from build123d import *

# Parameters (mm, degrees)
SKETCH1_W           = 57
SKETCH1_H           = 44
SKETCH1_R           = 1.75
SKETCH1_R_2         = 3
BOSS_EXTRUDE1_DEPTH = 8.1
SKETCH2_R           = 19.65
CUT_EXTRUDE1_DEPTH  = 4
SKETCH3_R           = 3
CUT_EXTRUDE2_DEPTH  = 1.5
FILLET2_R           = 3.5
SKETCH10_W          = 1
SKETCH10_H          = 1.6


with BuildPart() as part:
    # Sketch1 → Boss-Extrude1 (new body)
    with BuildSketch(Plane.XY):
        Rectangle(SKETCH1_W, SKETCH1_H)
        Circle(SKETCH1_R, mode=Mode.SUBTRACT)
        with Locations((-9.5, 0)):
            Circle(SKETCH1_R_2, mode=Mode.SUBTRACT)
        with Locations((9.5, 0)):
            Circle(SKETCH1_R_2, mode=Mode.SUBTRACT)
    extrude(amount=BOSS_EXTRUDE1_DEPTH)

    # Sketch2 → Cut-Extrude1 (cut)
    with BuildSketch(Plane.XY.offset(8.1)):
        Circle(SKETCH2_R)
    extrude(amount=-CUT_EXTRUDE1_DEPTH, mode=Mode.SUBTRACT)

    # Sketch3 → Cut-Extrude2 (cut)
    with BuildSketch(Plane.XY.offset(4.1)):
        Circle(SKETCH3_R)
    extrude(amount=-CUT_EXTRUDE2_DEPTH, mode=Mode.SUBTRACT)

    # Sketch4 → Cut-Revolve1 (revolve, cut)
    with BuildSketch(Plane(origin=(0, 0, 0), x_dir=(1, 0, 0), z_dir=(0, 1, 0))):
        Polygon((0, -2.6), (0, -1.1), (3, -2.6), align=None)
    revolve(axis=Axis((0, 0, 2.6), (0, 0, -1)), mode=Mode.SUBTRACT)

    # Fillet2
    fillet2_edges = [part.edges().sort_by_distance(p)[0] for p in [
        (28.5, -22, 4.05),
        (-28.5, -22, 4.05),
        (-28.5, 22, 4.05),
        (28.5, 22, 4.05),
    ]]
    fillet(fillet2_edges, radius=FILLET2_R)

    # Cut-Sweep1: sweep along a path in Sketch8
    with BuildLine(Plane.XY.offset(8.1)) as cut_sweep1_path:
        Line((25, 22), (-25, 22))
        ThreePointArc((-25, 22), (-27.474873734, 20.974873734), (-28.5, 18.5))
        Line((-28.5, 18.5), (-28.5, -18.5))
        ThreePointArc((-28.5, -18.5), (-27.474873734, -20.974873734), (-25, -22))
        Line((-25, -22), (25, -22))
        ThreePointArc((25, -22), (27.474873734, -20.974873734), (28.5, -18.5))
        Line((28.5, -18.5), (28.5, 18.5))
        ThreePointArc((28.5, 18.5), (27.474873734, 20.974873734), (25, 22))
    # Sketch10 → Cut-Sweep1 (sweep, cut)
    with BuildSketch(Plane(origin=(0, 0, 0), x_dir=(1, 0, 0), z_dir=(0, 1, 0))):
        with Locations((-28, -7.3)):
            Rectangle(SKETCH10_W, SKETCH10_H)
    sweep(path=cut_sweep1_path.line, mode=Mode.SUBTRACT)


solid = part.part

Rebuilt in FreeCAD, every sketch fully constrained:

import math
import FreeCAD as App
import Part
import Sketcher


def edges_at(feature, points):
    """Names of the edges that pass closest to the given points."""
    edges = feature.Shape.Edges
    near = lambda p: min(range(len(edges)), key=lambda i: edges[i].distToShape(Part.Vertex(*p))[0])
    return sorted({f"Edge{near(p) + 1}" for p in points})


def add_polygon(sketch, points):
    """Adds a closed chain of lines whose ends are joined by coincident constraints."""
    first, n = sketch.GeometryCount, len(points)
    for a, b in zip(points, points[1:] + points[:1]):
        sketch.addGeometry(Part.LineSegment(App.Vector(*a, 0), App.Vector(*b, 0)), False)
    for i in range(n):
        sketch.addConstraint(Sketcher.Constraint("Coincident", first + i, 2, first + (i + 1) % n, 1))

doc = App.newDocument("Part")
params = doc.addObject("Spreadsheet::Sheet", "Params")
for row, (alias, value) in enumerate([
    ("sketch1_diameter", "6 mm"),
    ("sketch1_diameter2", "3.5 mm"),
    ("sketch1_width", "57 mm"),
    ("sketch1_height", "44 mm"),
    ("pad1_length", "8.1 mm"),
    ("sketch2_diameter", "39.3 mm"),
    ("pocket1_length", "4 mm"),
    ("sketch3_diameter", "6 mm"),
    ("pocket2_length", "1.5 mm"),
    ("sketch4_width", "3 mm"),
    ("sketch4_height", "1.5 mm"),
    ("groove_angle", "360 deg"),
    ("fillet_radius", "3.5 mm"),
    ("sketch5_width", "1 mm"),
    ("sketch5_height", "1.6 mm"),
    ("sketch6_radius", "3.5 mm"),
    ("sketch6_width", "50 mm"),
    ("sketch6_height", "37 mm"),
], start=1):
    params.set(f"A{row}", alias)
    params.set(f"B{row}", "=" + value)
    params.setAlias(f"B{row}", alias)

body = doc.addObject("PartDesign::Body", "Body")

# Sketch on XY plane
sketch1 = body.newObject("Sketcher::SketchObject", "Sketch")
sketch1.AttachmentSupport = (doc.getObject("XY_Plane"), [""])
sketch1.MapMode = "FlatFace"
add_polygon(sketch1, [(-28.5, 22), (-28.5, -22), (28.5, -22), (28.5, 22)])  # lines 0-3
sketch1.addGeometry(Part.Circle(App.Vector(-9.5, 0, 0), App.Vector(0, 0, 1), 3), False)  # 4
sketch1.addGeometry(Part.Circle(App.Vector(0, 0, 0), App.Vector(0, 0, 1), 1.75), False)  # 5
sketch1.addGeometry(Part.Circle(App.Vector(9.5, 0, 0), App.Vector(0, 0, 1), 3), False)  # 6
sketch1.addConstraint([
    Sketcher.Constraint("Vertical", 0),
    Sketcher.Constraint("Horizontal", 1),
    Sketcher.Constraint("Vertical", 2),
    Sketcher.Constraint("Horizontal", 3),
    Sketcher.Constraint("Coincident", 5, 3, -1, 1),
    Sketcher.Constraint("Equal", 4, 6),
    Sketcher.Constraint("Symmetric", 4, 3, 6, 3, -1, 1),
    Sketcher.Constraint("Symmetric", 0, 2, 2, 2, -1, 1),
    Sketcher.Constraint("PointOnObject", 4, 3, -1),
    Sketcher.Constraint("Diameter", 4, 6.0),
    Sketcher.Constraint("Diameter", 5, 3.5),
    Sketcher.Constraint("DistanceX", 1, 1, 1, 2, 57.0),
    Sketcher.Constraint("DistanceY", 0, 2, 0, 1, 44.0),
    Sketcher.Constraint("DistanceX", 4, 3, 6, 3, 19.0),
])
sketch1.setExpression("Constraints[13]", "Params.sketch1_diameter")
sketch1.setExpression("Constraints[14]", "Params.sketch1_diameter2")
sketch1.setExpression("Constraints[15]", "Params.sketch1_width")
sketch1.setExpression("Constraints[16]", "Params.sketch1_height")
pad1 = body.newObject("PartDesign::Pad", "Pad")
pad1.Profile = sketch1
pad1.setExpression("Length", "Params.pad1_length")

# Sketch on XY plane
sketch2 = body.newObject("Sketcher::SketchObject", "Sketch001")
sketch2.AttachmentSupport = (doc.getObject("XY_Plane"), [""])
sketch2.MapMode = "FlatFace"
sketch2.AttachmentOffset = App.Placement(App.Vector(0, 0, 8.1), App.Rotation())
sketch2.addGeometry(Part.Circle(App.Vector(0, 0, 0), App.Vector(0, 0, 1), 19.65), False)
sketch2.addConstraint([
    Sketcher.Constraint("Coincident", 0, 3, -1, 1),
    Sketcher.Constraint("Diameter", 0, 39.3),
])
sketch2.setExpression("Constraints[1]", "Params.sketch2_diameter")
pocket1 = body.newObject("PartDesign::Pocket", "Pocket")
pocket1.Profile = sketch2
pocket1.setExpression("Length", "Params.pocket1_length")

# Sketch on XY plane
sketch3 = body.newObject("Sketcher::SketchObject", "Sketch002")
sketch3.AttachmentSupport = (doc.getObject("XY_Plane"), [""])
sketch3.MapMode = "FlatFace"
sketch3.AttachmentOffset = App.Placement(App.Vector(0, 0, 4.1), App.Rotation())
sketch3.addGeometry(Part.Circle(App.Vector(0, 0, 0), App.Vector(0, 0, 1), 3), False)
sketch3.addConstraint([
    Sketcher.Constraint("Coincident", 0, 3, -1, 1),
    Sketcher.Constraint("Diameter", 0, 6.0),
])
sketch3.setExpression("Constraints[1]", "Params.sketch3_diameter")
pocket2 = body.newObject("PartDesign::Pocket", "Pocket001")
pocket2.Profile = sketch3
pocket2.setExpression("Length", "Params.pocket2_length")

# Sketch on XZ plane
sketch4 = body.newObject("Sketcher::SketchObject", "Sketch003")
sketch4.AttachmentSupport = (doc.getObject("XZ_Plane"), [""])
sketch4.MapMode = "FlatFace"
add_polygon(sketch4, [(0, 1.1), (0, 2.6), (3, 2.6)])  # lines 0-2
sketch4.addConstraint([
    Sketcher.Constraint("Vertical", 0),
    Sketcher.Constraint("Horizontal", 1),
    Sketcher.Constraint("PointOnObject", 0, 2, -2),
    Sketcher.Constraint("DistanceX", 1, 1, 1, 2, 3.0),
    Sketcher.Constraint("DistanceY", 0, 1, 0, 2, 1.5),
    Sketcher.Constraint("DistanceY", -1, 1, 0, 2, 2.6),
])
sketch4.setExpression("Constraints[6]", "Params.sketch4_width")
sketch4.setExpression("Constraints[7]", "Params.sketch4_height")
groove = body.newObject("PartDesign::Groove", "Groove")
groove.Profile = sketch4
groove.ReferenceAxis = (sketch4, ["V_Axis"])
groove.setExpression("Angle", "Params.groove_angle")
doc.recompute()

fillet = body.newObject("PartDesign::Fillet", "Fillet")
fillet.Base = (groove, edges_at(groove, [
    (28.5, -22, 4.05),
    (-28.5, -22, 4.05),
    (-28.5, 22, 4.05),
    (28.5, 22, 4.05),
]))
fillet.setExpression("Radius", "Params.fillet_radius")

# Sketch on XZ plane
sketch5 = body.newObject("Sketcher::SketchObject", "Sketch004")
sketch5.AttachmentSupport = (doc.getObject("XZ_Plane"), [""])
sketch5.MapMode = "FlatFace"
add_polygon(sketch5, [(-28.5, 6.5), (-28.5, 8.1), (-27.5, 8.1), (-27.5, 6.5)])  # lines 0-3
sketch5.addConstraint([
    Sketcher.Constraint("Vertical", 0),
    Sketcher.Constraint("Horizontal", 1),
    Sketcher.Constraint("Vertical", 2),
    Sketcher.Constraint("Horizontal", 3),
    Sketcher.Constraint("DistanceX", 1, 1, 1, 2, 1.0),
    Sketcher.Constraint("DistanceY", 0, 1, 0, 2, 1.6),
    Sketcher.Constraint("DistanceX", 0, 2, -1, 1, 28.5),
    Sketcher.Constraint("DistanceY", -1, 1, 0, 2, 8.1),
])
sketch5.setExpression("Constraints[8]", "Params.sketch5_width")
sketch5.setExpression("Constraints[9]", "Params.sketch5_height")

# Sketch on XY plane
sketch6 = body.newObject("Sketcher::SketchObject", "Sketch005")
sketch6.AttachmentSupport = (doc.getObject("XY_Plane"), [""])
sketch6.MapMode = "FlatFace"
sketch6.AttachmentOffset = App.Placement(App.Vector(0, 0, 8.1), App.Rotation())
sketch6.addGeometry([
    Part.LineSegment(App.Vector(25, 22, 0), App.Vector(-25, 22, 0)),  # 0
    Part.ArcOfCircle(Part.Circle(App.Vector(-25, 18.5, 0), App.Vector(0, 0, 1), 3.5), math.radians(90), math.radians(180)),  # 1
    Part.LineSegment(App.Vector(-28.5, 18.5, 0), App.Vector(-28.5, -18.5, 0)),  # 2
    Part.ArcOfCircle(Part.Circle(App.Vector(-25, -18.5, 0), App.Vector(0, 0, 1), 3.5), math.radians(-180), math.radians(-90)),  # 3
    Part.LineSegment(App.Vector(-25, -22, 0), App.Vector(25, -22, 0)),  # 4
    Part.ArcOfCircle(Part.Circle(App.Vector(25, -18.5, 0), App.Vector(0, 0, 1), 3.5), math.radians(-90), math.radians(0)),  # 5
    Part.LineSegment(App.Vector(28.5, -18.5, 0), App.Vector(28.5, 18.5, 0)),  # 6
    Part.ArcOfCircle(Part.Circle(App.Vector(25, 18.5, 0), App.Vector(0, 0, 1), 3.5), math.radians(0), math.radians(90)),  # 7
], False)
sketch6.addConstraint([
    Sketcher.Constraint("Tangent", 0, 2, 1, 1),
    Sketcher.Constraint("Tangent", 1, 2, 2, 1),
    Sketcher.Constraint("Tangent", 2, 2, 3, 1),
    Sketcher.Constraint("Tangent", 3, 2, 4, 1),
    Sketcher.Constraint("Tangent", 4, 2, 5, 1),
    Sketcher.Constraint("Tangent", 5, 2, 6, 1),
    Sketcher.Constraint("Tangent", 6, 2, 7, 1),
    Sketcher.Constraint("Tangent", 7, 2, 0, 1),
    Sketcher.Constraint("Horizontal", 0),
    Sketcher.Constraint("Vertical", 2),
    Sketcher.Constraint("Horizontal", 4),
    Sketcher.Constraint("Vertical", 6),
    Sketcher.Constraint("Equal", 1, 3),
    Sketcher.Constraint("Equal", 3, 5),
    Sketcher.Constraint("Equal", 5, 7),
    Sketcher.Constraint("Symmetric", 1, 3, 5, 3, -1, 1),
    Sketcher.Constraint("Radius", 1, 3.5),
    Sketcher.Constraint("DistanceX", 0, 2, 0, 1, 50.0),
    Sketcher.Constraint("DistanceY", 2, 2, 2, 1, 37.0),
])
sketch6.setExpression("Constraints[16]", "Params.sketch6_radius")
sketch6.setExpression("Constraints[17]", "Params.sketch6_width")
sketch6.setExpression("Constraints[18]", "Params.sketch6_height")
doc.recompute()

subtractivepipe = body.newObject("PartDesign::SubtractivePipe", "SubtractivePipe")
subtractivepipe.Profile = sketch5
subtractivepipe.Spine = (sketch6, ["Edge1", "Edge2", "Edge3", "Edge4", "Edge5", "Edge6", "Edge7", "Edge8"])

doc.recompute()
